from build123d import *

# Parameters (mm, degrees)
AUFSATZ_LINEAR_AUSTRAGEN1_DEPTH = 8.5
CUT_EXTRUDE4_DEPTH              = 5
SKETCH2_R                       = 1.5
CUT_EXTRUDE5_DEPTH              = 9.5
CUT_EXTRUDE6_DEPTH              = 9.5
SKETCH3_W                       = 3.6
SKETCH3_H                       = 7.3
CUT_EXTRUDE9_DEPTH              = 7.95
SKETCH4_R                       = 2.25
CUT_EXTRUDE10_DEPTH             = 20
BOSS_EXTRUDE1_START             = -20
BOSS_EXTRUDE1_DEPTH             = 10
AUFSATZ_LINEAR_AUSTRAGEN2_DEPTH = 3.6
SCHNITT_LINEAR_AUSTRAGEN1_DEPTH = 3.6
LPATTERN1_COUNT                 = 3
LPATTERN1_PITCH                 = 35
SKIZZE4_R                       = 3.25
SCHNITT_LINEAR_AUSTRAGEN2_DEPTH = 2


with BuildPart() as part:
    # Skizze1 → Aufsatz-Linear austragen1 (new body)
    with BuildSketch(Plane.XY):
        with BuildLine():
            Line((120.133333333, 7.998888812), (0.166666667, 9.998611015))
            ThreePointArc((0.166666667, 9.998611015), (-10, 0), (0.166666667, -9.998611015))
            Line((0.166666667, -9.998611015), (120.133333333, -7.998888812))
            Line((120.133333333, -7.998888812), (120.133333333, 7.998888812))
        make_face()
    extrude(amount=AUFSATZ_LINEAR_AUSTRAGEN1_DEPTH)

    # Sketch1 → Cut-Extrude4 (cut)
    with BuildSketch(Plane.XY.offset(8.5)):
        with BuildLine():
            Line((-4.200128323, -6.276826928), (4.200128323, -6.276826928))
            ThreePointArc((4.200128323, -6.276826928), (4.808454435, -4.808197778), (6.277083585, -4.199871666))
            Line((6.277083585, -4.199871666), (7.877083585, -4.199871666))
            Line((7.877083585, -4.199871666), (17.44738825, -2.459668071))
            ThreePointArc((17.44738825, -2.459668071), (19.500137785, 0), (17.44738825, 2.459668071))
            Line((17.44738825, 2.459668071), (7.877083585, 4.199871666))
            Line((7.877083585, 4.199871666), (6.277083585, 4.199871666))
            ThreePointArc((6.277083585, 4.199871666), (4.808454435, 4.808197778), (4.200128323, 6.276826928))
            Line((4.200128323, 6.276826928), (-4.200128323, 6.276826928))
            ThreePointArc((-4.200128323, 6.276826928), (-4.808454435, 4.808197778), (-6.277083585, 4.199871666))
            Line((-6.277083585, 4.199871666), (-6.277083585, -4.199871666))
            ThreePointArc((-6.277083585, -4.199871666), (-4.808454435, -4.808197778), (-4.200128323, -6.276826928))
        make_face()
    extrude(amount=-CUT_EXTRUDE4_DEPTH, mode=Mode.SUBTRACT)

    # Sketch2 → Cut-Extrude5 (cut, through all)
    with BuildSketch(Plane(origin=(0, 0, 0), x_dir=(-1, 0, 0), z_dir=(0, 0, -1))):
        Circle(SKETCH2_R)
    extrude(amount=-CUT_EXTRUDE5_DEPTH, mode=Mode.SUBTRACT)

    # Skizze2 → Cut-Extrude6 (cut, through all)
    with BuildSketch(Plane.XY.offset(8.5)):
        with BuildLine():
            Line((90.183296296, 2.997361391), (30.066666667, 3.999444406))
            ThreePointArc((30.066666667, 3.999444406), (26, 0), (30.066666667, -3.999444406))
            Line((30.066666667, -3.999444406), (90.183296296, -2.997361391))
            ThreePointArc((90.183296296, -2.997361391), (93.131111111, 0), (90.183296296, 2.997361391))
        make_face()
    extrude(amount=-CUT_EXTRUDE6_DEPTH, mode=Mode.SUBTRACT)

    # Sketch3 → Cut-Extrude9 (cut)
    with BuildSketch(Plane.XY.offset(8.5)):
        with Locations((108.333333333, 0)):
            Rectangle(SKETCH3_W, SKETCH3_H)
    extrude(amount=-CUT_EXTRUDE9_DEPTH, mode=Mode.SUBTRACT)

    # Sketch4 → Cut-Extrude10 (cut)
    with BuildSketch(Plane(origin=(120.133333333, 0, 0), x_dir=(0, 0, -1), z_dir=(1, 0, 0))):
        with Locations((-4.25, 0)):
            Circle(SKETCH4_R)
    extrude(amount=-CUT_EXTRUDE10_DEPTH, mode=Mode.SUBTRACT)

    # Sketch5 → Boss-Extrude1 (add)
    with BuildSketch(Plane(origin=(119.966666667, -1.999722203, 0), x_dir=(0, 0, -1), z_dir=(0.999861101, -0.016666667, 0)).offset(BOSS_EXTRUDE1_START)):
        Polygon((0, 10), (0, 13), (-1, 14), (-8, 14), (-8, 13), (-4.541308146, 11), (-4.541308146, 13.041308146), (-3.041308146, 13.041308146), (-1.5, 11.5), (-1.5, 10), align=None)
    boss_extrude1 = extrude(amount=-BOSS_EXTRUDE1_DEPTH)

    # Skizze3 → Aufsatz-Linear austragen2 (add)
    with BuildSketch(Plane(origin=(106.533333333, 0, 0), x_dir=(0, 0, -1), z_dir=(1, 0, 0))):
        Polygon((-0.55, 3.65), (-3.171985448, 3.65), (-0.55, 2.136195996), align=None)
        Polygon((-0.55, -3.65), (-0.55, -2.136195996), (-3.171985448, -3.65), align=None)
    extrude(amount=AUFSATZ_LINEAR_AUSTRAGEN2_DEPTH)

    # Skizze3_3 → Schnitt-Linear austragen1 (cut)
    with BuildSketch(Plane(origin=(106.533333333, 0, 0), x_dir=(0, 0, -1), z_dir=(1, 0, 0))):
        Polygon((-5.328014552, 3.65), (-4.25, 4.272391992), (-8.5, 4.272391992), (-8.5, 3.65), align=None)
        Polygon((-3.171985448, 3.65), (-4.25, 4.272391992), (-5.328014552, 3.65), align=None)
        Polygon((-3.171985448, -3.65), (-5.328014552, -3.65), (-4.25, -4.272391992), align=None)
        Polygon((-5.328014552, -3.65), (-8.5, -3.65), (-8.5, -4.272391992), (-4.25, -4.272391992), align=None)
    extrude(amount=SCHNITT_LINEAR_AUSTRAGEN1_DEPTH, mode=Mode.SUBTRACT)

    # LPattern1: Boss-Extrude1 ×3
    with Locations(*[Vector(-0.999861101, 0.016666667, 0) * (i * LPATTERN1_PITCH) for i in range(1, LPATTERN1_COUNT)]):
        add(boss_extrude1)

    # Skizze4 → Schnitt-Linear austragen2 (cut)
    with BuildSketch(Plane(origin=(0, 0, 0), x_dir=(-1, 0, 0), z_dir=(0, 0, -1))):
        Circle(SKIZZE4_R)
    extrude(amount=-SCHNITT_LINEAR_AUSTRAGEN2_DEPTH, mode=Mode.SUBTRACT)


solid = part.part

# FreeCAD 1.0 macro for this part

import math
import FreeCAD as App
import Part
import Sketcher
Q = App.Units.Quantity


def add_polygon(sketch, points):
    """Adds a closed chain of lines whose ends are joined by coincident constraints."""
    first, n = sketch.GeometryCount, len(points)
    for a, b in zip(points, points[1:] + points[:1]):
        sketch.addGeometry(Part.LineSegment(App.Vector(*a, 0), App.Vector(*b, 0)), False)
    for i in range(n):
        sketch.addConstraint(Sketcher.Constraint("Coincident", first + i, 2, first + (i + 1) % n, 1))

doc = App.newDocument("Part")
body = doc.addObject("PartDesign::Body", "Body")

sketch1 = doc.addObject("Sketcher::SketchObject", "Sketch")
body.addObject(sketch1)
sketch1.AttachmentSupport = (doc.XY_Plane, [""])
sketch1.MapMode = "FlatFace"
sketch1.addGeometry([
    Part.LineSegment(App.Vector(120, 8, 0), App.Vector(0, 10, 0)),
    Part.ArcOfCircle(Part.Circle(App.Vector(0, 0, 0), App.Vector(0, 0, 1), 10), math.radians(89), math.radians(271)),
    Part.LineSegment(App.Vector(0, -10, 0), App.Vector(120, -8, 0)),
    Part.LineSegment(App.Vector(120, -8, 0), App.Vector(120, 8, 0)),
], False)
sketch1.addConstraint([
    Sketcher.Constraint("Tangent", 0, 2, 1, 1),
    Sketcher.Constraint("Tangent", 1, 2, 2, 1),
    Sketcher.Constraint("Coincident", 2, 2, 3, 1),
    Sketcher.Constraint("Coincident", 3, 2, 0, 1),
    Sketcher.Constraint("Vertical", 3),
    Sketcher.Constraint("Coincident", 1, 3, -1, 1),
    Sketcher.Constraint("Vertical", 0, 2, 1, 2),
    Sketcher.Constraint("Radius", 1, 10.0),
    Sketcher.Constraint("DistanceY", 2, 2, 0, 2, 17.9975),
    Sketcher.Constraint("Distance", 0, 119.983332),
])
pad1 = doc.addObject("PartDesign::Pad", "Pad")
body.addObject(pad1)
pad1.Profile = sketch1
pad1.Length = 8.5

sketch2 = doc.addObject("Sketcher::SketchObject", "Sketch001")
body.addObject(sketch2)
sketch2.AttachmentSupport = (doc.XY_Plane, [""])
sketch2.MapMode = "FlatFace"
sketch2.AttachmentOffset = App.Placement(App.Vector(0, 0, 8.5), App.Rotation())
sketch2.addGeometry([
    Part.LineSegment(App.Vector(-4.2, -6.3, 0), App.Vector(4.2, -6.3, 0)),
    Part.ArcOfCircle(Part.Circle(App.Vector(6.3, -6.3, 0), App.Vector(0, 0, 1), 2.1), math.radians(90), math.radians(180)),
    Part.LineSegment(App.Vector(6.3, -4.2, 0), App.Vector(7.9, -4.2, 0)),
    Part.LineSegment(App.Vector(7.9, -4.2, 0), App.Vector(17.4, -2.5, 0)),
    Part.ArcOfCircle(Part.Circle(App.Vector(17, 0, 0), App.Vector(0, 0, 1), 2.5), math.radians(-80), math.radians(80)),
    Part.LineSegment(App.Vector(17.4, 2.5, 0), App.Vector(7.9, 4.2, 0)),
    Part.LineSegment(App.Vector(7.9, 4.2, 0), App.Vector(6.3, 4.2, 0)),
    Part.ArcOfCircle(Part.Circle(App.Vector(6.3, 6.3, 0), App.Vector(0, 0, 1), 2.1), math.radians(180), math.radians(270)),
    Part.LineSegment(App.Vector(4.2, 6.3, 0), App.Vector(-4.2, 6.3, 0)),
    Part.ArcOfCircle(Part.Circle(App.Vector(-6.3, 6.3, 0), App.Vector(0, 0, 1), 2.1), math.radians(-90), math.radians(0)),
    Part.LineSegment(App.Vector(-6.3, 4.2, 0), App.Vector(-6.3, -4.2, 0)),
    Part.ArcOfCircle(Part.Circle(App.Vector(-6.3, -6.3, 0), App.Vector(0, 0, 1), 2.1), math.radians(0), math.radians(90)),
], False)
sketch2.addConstraint([
    Sketcher.Constraint("Coincident", 0, 2, 1, 2),
    Sketcher.Constraint("Tangent", 1, 1, 2, 1),
    Sketcher.Constraint("Coincident", 2, 2, 3, 1),
    Sketcher.Constraint("Tangent", 3, 2, 4, 1),
    Sketcher.Constraint("Tangent", 4, 2, 5, 1),
    Sketcher.Constraint("Coincident", 5, 2, 6, 1),
    Sketcher.Constraint("Tangent", 6, 2, 7, 2),
    Sketcher.Constraint("Coincident", 7, 1, 8, 1),
    Sketcher.Constraint("Coincident", 8, 2, 9, 2),
    Sketcher.Constraint("Coincident", 9, 1, 10, 1),
    Sketcher.Constraint("Coincident", 10, 2, 11, 2),
    Sketcher.Constraint("Coincident", 11, 1, 0, 1),
    Sketcher.Constraint("Horizontal", 0),
    Sketcher.Constraint("Horizontal", 2),
    Sketcher.Constraint("Horizontal", 6),
    Sketcher.Constraint("Horizontal", 8),
    Sketcher.Constraint("Vertical", 10),
    Sketcher.Constraint("Equal", 1, 7),
    Sketcher.Constraint("Equal", 7, 9),
    Sketcher.Constraint("Equal", 9, 11),
    Sketcher.Constraint("Symmetric", 1, 3, 9, 3, -1, 1),
    Sketcher.Constraint("Symmetric", 7, 3, 11, 3, -1, 1),
    Sketcher.Constraint("Symmetric", 7, 3, 9, 3, -2),
    Sketcher.Constraint("Symmetric", 3, 2, 4, 2, -1),
    Sketcher.Constraint("Horizontal", 11, 3, 0, 2),
    Sketcher.Constraint("Horizontal", 9, 3, 7, 1),
    Sketcher.Constraint("Vertical", 11, 3, 9, 1),
    Sketcher.Constraint("Radius", 4, 2.5),
    Sketcher.Constraint("DistanceX", 2, 1, 2, 2, 1.6),
    Sketcher.Constraint("Radius", 1, 2.076955),
    Sketcher.Constraint("DistanceY", 1, 1, 7, 3, 10.476699),
    Sketcher.Constraint("Distance", 3, 9.727232),
    Sketcher.Constraint("DistanceX", 0, 1, 0, 2, 8.400257),
])
pocket1 = doc.addObject("PartDesign::Pocket", "Pocket")
body.addObject(pocket1)
pocket1.Profile = sketch2
pocket1.Length = 5

sketch3 = doc.addObject("Sketcher::SketchObject", "Sketch002")
body.addObject(sketch3)
sketch3.AttachmentSupport = (doc.XY_Plane, [""])
sketch3.MapMode = "FlatFace"
sketch3.addGeometry(Part.Circle(App.Vector(0, 0, 0), App.Vector(0, 0, 1), 1.5), False)
sketch3.addConstraint([
    Sketcher.Constraint("Coincident", 0, 3, -1, 1),
    Sketcher.Constraint("Diameter", 0, 3.0),
])
pocket2 = doc.addObject("PartDesign::Pocket", "Pocket001")
body.addObject(pocket2)
pocket2.Profile = sketch3
pocket2.Type = "ThroughAll"
pocket2.Reversed = True

sketch4 = doc.addObject("Sketcher::SketchObject", "Sketch003")
body.addObject(sketch4)
sketch4.AttachmentSupport = (doc.XY_Plane, [""])
sketch4.MapMode = "FlatFace"
sketch4.AttachmentOffset = App.Placement(App.Vector(0, 0, 8.5), App.Rotation())
sketch4.addGeometry([
    Part.LineSegment(App.Vector(90.2, 3, 0), App.Vector(30.1, 4, 0)),
    Part.ArcOfCircle(Part.Circle(App.Vector(30, 0, 0), App.Vector(0, 0, 1), 4), math.radians(89), math.radians(271)),
    Part.LineSegment(App.Vector(30.1, -4, 0), App.Vector(90.2, -3, 0)),
    Part.ArcOfCircle(Part.Circle(App.Vector(90.1, 0, 0), App.Vector(0, 0, 1), 3), math.radians(-89), math.radians(89)),
], False)
sketch4.addConstraint([
    Sketcher.Constraint("Tangent", 0, 2, 1, 1),
    Sketcher.Constraint("Tangent", 1, 2, 2, 1),
    Sketcher.Constraint("Tangent", 2, 2, 3, 1),
    Sketcher.Constraint("Tangent", 3, 2, 0, 1),
    Sketcher.Constraint("Symmetric", 0, 2, 1, 2, -1),
    Sketcher.Constraint("Radius", 1, 4.0),
    Sketcher.Constraint("DistanceX", -1, 1, 1, 3, 30.0),
    Sketcher.Constraint("Radius", 3, 2.997778),
    Sketcher.Constraint("Distance", 0, 60.124981),
])
pocket3 = doc.addObject("PartDesign::Pocket", "Pocket002")
body.addObject(pocket3)
pocket3.Profile = sketch4
pocket3.Type = "ThroughAll"

sketch5 = doc.addObject("Sketcher::SketchObject", "Sketch004")
body.addObject(sketch5)
sketch5.AttachmentSupport = (doc.XY_Plane, [""])
sketch5.MapMode = "FlatFace"
sketch5.AttachmentOffset = App.Placement(App.Vector(0, 0, 8.5), App.Rotation())
add_polygon(sketch5, [(106.5, 3.6), (106.5, -3.6), (110.1, -3.6), (110.1, 3.6)])
sketch5.addConstraint([
    Sketcher.Constraint("Vertical", 0),
    Sketcher.Constraint("Horizontal", 1),
    Sketcher.Constraint("Vertical", 2),
    Sketcher.Constraint("Horizontal", 3),
    Sketcher.Constraint("DistanceX", 1, 1, 1, 2, 3.6),
    Sketcher.Constraint("DistanceY", 0, 2, 0, 1, 7.3),
    Sketcher.Constraint("DistanceY", 0, 2, -1, 1, 3.65),
    Sketcher.Constraint("DistanceX", -1, 1, 0, 2, 106.533333),
])
pocket4 = doc.addObject("PartDesign::Pocket", "Pocket003")
body.addObject(pocket4)
pocket4.Profile = sketch5
pocket4.Length = 7.95

sketch6 = doc.addObject("Sketcher::SketchObject", "Sketch005")
body.addObject(sketch6)
sketch6.AttachmentSupport = (doc.YZ_Plane, [""])
sketch6.MapMode = "FlatFace"
sketch6.AttachmentOffset = App.Placement(App.Vector(0, 0, 120.133333), App.Rotation())
sketch6.addGeometry(Part.Circle(App.Vector(0, 4.2, 0), App.Vector(0, 0, 1), 2.2), False)
sketch6.addConstraint([
    Sketcher.Constraint("PointOnObject", 0, 3, -2),
    Sketcher.Constraint("Diameter", 0, 4.5),
    Sketcher.Constraint("DistanceY", -1, 1, 0, 3, 4.25),
])
pocket5 = doc.addObject("PartDesign::Pocket", "Pocket004")
body.addObject(pocket5)
pocket5.Profile = sketch6
pocket5.Length = 20

sketch7 = doc.addObject("Sketcher::SketchObject", "Sketch006")
body.addObject(sketch7)
sketch7.Placement = App.Placement(App.Vector(99.969445, -1.666389, 0), App.Rotation(App.Vector(0, 0, -1), App.Vector(0.016666667, 0.999861101, 0), App.Vector(0.999861101, -0.016666667, 0), "ZXY"))
add_polygon(sketch7, [(0, 10), (0, 13), (-1, 14), (-8, 14), (-8, 13), (-4.5, 11), (-4.5, 13), (-3, 13), (-1.5, 11.5), (-1.5, 10)])
sketch7.addConstraint([
    Sketcher.Constraint("Vertical", 0),
    Sketcher.Constraint("Horizontal", 2),
    Sketcher.Constraint("Vertical", 3),
    Sketcher.Constraint("Vertical", 5),
    Sketcher.Constraint("Horizontal", 6),
    Sketcher.Constraint("Vertical", 8),
    Sketcher.Constraint("Horizontal", 9),
    Sketcher.Constraint("PointOnObject", 0, 2, -2),
    Sketcher.Constraint("Parallel", 1, 7),
    Sketcher.Constraint("Horizontal", 0, 2, 3, 2),
    Sketcher.Constraint("Equal", 6, 9),
    Sketcher.Constraint("Equal", 9, 8),
    Sketcher.Constraint("DistanceX", 2, 2, 2, 1, 7.0),
    Sketcher.Constraint("DistanceY", 0, 1, 0, 2, 3.0),
    Sketcher.Constraint("DistanceY", 3, 2, 3, 1, 1.0),
    Sketcher.Constraint("Angle", 1, Q("135 deg")),
    Sketcher.Constraint("DistanceX", 6, 1, 6, 2, 1.5),
    Sketcher.Constraint("DistanceY", -1, 1, 0, 2, 13.0),
    Sketcher.Constraint("DistanceY", -1, 1, 4, 2, 11.0),
    Sketcher.Constraint("DistanceY", 5, 1, 5, 2, 2.041308),
])
pad2 = doc.addObject("PartDesign::Pad", "Pad001")
body.addObject(pad2)
pad2.Profile = sketch7
pad2.Length = 10
pad2.Reversed = True

sketch8 = doc.addObject("Sketcher::SketchObject", "Sketch007")
body.addObject(sketch8)
sketch8.AttachmentSupport = (doc.YZ_Plane, [""])
sketch8.MapMode = "FlatFace"
sketch8.AttachmentOffset = App.Placement(App.Vector(0, 0, 106.533333), App.Rotation())
add_polygon(sketch8, [(3.6, 0.6), (3.6, 3.2), (2.1, 0.6)])
add_polygon(sketch8, [(-3.6, 0.6), (-2.1, 0.6), (-3.6, 3.2)])
sketch8.addConstraint([
    Sketcher.Constraint("Vertical", 0),
    Sketcher.Constraint("Horizontal", 2),
    Sketcher.Constraint("Horizontal", 3),
    Sketcher.Constraint("Vertical", 5),
    Sketcher.Constraint("Symmetric", 1, 2, 3, 2, -2),
    Sketcher.Constraint("Symmetric", 0, 2, 4, 2, -2),
    Sketcher.Constraint("Angle", 1, Q("-120 deg")),
    Sketcher.Constraint("DistanceX", 4, 2, 0, 2, 7.3),
    Sketcher.Constraint("DistanceY", -1, 1, 1, 2, 0.55),
    Sketcher.Constraint("Distance", 1, 3.027608),
])
pad3 = doc.addObject("PartDesign::Pad", "Pad002")
body.addObject(pad3)
pad3.Profile = sketch8
pad3.Length = 3.6

sketch9 = doc.addObject("Sketcher::SketchObject", "Sketch008")
body.addObject(sketch9)
sketch9.AttachmentSupport = (doc.YZ_Plane, [""])
sketch9.MapMode = "FlatFace"
sketch9.AttachmentOffset = App.Placement(App.Vector(0, 0, 106.533333), App.Rotation())
add_polygon(sketch9, [(4.3, 4.2), (4.3, 8.5), (3.6, 8.5), (3.6, 3.2)])
add_polygon(sketch9, [(-3.6, 3.2), (-3.6, 8.5), (-4.3, 8.5), (-4.3, 4.2)])
sketch9.addConstraint([
    Sketcher.Constraint("Vertical", 0),
    Sketcher.Constraint("Horizontal", 1),
    Sketcher.Constraint("Vertical", 2),
    Sketcher.Constraint("Vertical", 4),
    Sketcher.Constraint("Horizontal", 5),
    Sketcher.Constraint("Vertical", 6),
    Sketcher.Constraint("Symmetric", 1, 2, 4, 2, -2),
    Sketcher.Constraint("Symmetric", 3, 2, 6, 2, -2),
    Sketcher.Constraint("Horizontal", 2, 2, 7, 2),
    Sketcher.Constraint("Angle", 3, Q("60 deg")),
    Sketcher.Constraint("DistanceY", 0, 1, 0, 2, 4.25),
    Sketcher.Constraint("DistanceY", -1, 1, 0, 2, 8.5),
    Sketcher.Constraint("DistanceX", 4, 2, 1, 2, 7.3),
    Sketcher.Constraint("DistanceX", 1, 2, 1, 1, 0.622392),
])
pocket6 = doc.addObject("PartDesign::Pocket", "Pocket005")
body.addObject(pocket6)
pocket6.Profile = sketch9
pocket6.Length = 3.6
pocket6.Reversed = True
doc.recompute()

datumline = doc.addObject("PartDesign::Line", "DatumLine")
body.addObject(datumline)
datumline.Placement = App.Placement(App.Vector(0, 0, 0), App.Rotation(App.Vector(0, 0, 1), App.Vector(-0.999861101, 0.016666667, 0)))
linearpattern = doc.addObject("PartDesign::LinearPattern", "LinearPattern")
body.addObject(linearpattern)
linearpattern.Originals = [pad2]
linearpattern.Direction = (datumline, [""])
linearpattern.Mode = "offset"
linearpattern.Offset = 35
linearpattern.Occurrences = 3
body.Tip = linearpattern

sketch10 = doc.addObject("Sketcher::SketchObject", "Sketch009")
body.addObject(sketch10)
sketch10.AttachmentSupport = (doc.XY_Plane, [""])
sketch10.MapMode = "FlatFace"
sketch10.addGeometry(Part.Circle(App.Vector(0, 0, 0), App.Vector(0, 0, 1), 3.2), False)
sketch10.addConstraint([
    Sketcher.Constraint("Coincident", 0, 3, -1, 1),
    Sketcher.Constraint("Diameter", 0, 6.5),
])
pocket7 = doc.addObject("PartDesign::Pocket", "Pocket006")
body.addObject(pocket7)
pocket7.Profile = sketch10
pocket7.Length = 2
pocket7.Reversed = True

doc.recompute()
